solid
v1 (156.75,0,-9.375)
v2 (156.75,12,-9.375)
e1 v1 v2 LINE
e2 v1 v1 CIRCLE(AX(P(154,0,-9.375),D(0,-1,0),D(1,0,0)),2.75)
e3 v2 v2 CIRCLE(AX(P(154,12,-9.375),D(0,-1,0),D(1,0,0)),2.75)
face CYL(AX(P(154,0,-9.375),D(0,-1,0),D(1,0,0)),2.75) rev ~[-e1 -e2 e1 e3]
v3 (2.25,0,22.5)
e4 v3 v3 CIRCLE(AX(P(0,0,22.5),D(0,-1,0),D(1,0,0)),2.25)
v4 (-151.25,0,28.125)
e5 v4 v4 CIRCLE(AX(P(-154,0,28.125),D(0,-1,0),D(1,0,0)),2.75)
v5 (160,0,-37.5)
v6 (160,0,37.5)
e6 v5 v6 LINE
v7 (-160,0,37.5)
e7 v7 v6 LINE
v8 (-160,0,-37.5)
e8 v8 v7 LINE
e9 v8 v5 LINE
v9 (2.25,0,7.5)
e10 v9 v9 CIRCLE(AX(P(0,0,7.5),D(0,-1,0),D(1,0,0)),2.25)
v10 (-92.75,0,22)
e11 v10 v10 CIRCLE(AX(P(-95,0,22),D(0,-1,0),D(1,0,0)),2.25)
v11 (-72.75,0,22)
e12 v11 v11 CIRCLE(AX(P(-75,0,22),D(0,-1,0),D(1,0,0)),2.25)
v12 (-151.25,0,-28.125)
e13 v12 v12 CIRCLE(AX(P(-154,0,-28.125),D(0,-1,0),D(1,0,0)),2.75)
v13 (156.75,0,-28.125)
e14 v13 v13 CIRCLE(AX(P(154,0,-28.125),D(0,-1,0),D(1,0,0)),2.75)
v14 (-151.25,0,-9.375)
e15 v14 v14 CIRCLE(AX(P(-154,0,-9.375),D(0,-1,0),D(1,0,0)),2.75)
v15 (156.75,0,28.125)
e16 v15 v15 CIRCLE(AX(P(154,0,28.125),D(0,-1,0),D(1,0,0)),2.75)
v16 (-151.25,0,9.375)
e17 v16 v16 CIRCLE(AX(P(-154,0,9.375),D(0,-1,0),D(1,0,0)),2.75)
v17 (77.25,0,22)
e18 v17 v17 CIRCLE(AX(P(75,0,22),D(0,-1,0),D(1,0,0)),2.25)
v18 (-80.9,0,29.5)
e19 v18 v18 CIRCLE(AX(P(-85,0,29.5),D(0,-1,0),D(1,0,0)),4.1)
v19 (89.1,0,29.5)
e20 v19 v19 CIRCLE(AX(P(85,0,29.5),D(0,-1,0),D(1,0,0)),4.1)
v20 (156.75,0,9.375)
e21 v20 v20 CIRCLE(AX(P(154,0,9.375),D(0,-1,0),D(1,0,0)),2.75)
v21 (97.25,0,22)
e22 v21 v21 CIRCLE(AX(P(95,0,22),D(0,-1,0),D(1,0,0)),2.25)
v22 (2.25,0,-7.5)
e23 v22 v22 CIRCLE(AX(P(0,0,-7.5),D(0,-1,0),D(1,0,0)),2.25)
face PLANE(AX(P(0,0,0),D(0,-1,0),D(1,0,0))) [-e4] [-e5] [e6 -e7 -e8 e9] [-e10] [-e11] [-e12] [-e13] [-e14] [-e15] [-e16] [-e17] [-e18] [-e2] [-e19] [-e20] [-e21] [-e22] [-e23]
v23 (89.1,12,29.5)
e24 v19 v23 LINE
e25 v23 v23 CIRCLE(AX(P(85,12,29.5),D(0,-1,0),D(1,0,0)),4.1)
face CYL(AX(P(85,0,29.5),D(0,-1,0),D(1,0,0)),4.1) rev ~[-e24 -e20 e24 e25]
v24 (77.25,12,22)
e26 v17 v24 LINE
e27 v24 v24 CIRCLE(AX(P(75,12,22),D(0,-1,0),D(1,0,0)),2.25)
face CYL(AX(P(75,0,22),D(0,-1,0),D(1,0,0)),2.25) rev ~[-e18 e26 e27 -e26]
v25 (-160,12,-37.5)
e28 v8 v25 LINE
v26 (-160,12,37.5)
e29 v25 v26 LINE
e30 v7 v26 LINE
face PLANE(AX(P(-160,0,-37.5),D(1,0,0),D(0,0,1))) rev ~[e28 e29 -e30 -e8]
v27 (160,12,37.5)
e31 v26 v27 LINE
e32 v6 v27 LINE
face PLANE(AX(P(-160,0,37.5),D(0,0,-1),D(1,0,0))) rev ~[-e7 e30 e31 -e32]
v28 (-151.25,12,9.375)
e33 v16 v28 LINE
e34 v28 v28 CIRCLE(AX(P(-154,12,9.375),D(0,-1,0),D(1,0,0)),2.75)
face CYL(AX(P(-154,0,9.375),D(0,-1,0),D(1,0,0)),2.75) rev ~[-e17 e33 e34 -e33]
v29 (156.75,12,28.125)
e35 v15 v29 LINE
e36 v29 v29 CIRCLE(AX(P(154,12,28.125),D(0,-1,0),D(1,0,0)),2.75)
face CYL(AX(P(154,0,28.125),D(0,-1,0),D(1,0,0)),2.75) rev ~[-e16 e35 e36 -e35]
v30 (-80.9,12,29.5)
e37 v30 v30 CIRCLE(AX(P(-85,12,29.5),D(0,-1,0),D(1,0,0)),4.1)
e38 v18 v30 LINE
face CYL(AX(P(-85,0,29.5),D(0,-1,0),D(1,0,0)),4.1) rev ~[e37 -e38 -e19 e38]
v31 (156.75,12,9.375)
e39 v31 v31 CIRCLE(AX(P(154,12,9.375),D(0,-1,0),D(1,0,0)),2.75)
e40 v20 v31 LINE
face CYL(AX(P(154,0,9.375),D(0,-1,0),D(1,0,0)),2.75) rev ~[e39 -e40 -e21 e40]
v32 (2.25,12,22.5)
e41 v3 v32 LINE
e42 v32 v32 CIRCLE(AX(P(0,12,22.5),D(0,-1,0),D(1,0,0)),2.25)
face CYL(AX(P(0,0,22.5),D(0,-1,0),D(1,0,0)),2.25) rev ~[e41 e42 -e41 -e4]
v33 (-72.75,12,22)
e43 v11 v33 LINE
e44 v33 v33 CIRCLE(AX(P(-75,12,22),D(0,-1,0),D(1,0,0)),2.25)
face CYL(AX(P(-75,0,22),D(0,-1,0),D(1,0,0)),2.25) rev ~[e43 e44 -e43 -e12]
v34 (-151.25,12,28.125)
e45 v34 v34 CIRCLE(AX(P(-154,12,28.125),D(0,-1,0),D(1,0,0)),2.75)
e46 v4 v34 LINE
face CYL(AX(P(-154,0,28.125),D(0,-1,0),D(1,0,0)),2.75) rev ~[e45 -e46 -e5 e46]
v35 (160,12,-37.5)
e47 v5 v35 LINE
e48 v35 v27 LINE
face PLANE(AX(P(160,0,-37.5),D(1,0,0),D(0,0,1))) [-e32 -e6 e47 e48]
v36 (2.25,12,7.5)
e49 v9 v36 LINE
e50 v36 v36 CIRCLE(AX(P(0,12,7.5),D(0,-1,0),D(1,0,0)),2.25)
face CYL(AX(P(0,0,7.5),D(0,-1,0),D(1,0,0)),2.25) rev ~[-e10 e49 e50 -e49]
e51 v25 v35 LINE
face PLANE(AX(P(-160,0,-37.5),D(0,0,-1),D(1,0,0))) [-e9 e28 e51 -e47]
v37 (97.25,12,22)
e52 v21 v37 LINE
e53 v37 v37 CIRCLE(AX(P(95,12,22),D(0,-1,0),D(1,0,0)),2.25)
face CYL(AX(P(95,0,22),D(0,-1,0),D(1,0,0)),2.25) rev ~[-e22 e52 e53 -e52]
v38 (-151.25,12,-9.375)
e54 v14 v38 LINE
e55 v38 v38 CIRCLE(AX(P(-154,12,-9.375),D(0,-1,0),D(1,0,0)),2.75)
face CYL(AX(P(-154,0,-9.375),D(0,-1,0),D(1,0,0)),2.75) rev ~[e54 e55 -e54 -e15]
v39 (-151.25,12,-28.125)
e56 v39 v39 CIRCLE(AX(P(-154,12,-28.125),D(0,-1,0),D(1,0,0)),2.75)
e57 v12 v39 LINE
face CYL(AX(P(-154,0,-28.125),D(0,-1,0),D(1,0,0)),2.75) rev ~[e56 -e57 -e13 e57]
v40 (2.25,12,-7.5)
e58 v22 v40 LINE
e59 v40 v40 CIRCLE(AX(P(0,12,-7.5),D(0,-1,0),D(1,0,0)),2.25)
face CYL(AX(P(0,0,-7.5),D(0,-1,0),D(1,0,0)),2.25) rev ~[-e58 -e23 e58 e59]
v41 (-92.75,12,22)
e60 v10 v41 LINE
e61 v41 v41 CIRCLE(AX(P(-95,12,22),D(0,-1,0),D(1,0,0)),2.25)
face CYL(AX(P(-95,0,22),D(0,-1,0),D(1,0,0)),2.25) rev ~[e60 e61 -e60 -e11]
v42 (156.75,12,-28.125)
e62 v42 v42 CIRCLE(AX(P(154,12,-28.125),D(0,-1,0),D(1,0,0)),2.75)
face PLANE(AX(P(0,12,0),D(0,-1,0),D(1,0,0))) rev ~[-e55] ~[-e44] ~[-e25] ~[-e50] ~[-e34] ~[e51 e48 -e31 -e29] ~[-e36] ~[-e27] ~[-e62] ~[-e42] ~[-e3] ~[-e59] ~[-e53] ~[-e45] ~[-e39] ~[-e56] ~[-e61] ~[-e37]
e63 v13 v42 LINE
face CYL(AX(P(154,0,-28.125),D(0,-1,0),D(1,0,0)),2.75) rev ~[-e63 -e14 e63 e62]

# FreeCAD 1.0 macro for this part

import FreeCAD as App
import Part
import Sketcher


def add_polygon(sketch, points):
    """Adds a closed chain of lines whose ends are joined by coincident constraints."""
    first, n = sketch.GeometryCount, len(points)
    for a, b in zip(points, points[1:] + points[:1]):
        sketch.addGeometry(Part.LineSegment(App.Vector(*a, 0), App.Vector(*b, 0)), False)
    for i in range(n):
        sketch.addConstraint(Sketcher.Constraint("Coincident", first + i, 2, first + (i + 1) % n, 1))

doc = App.newDocument("Part")
body = doc.addObject("PartDesign::Body", "Body")

# Sketch on XZ plane
sketch1 = body.newObject("Sketcher::SketchObject", "Sketch")
sketch1.AttachmentSupport = (doc.getObject("XZ_Plane"), [""])
sketch1.MapMode = "FlatFace"
add_polygon(sketch1, [(-160, 37.5), (-160, -37.5), (160, -37.5), (160, 37.5)])  # lines 0-3
sketch1.addGeometry(Part.Circle(App.Vector(-154, -28.1, 0), App.Vector(0, 0, 1), 2.8), False)  # 4
sketch1.addGeometry(Part.Circle(App.Vector(-154, -9.4, 0), App.Vector(0, 0, 1), 2.8), False)  # 5
sketch1.addGeometry(Part.Circle(App.Vector(154, -28.1, 0), App.Vector(0, 0, 1), 2.8), False)  # 6
sketch1.addGeometry(Part.Circle(App.Vector(0, -7.5, 0), App.Vector(0, 0, 1), 2.2), False)  # 7
sketch1.addGeometry(Part.Circle(App.Vector(154, -9.4, 0), App.Vector(0, 0, 1), 2.8), False)  # 8
sketch1.addGeometry(Part.Circle(App.Vector(-154, 9.4, 0), App.Vector(0, 0, 1), 2.8), False)  # 9
sketch1.addGeometry(Part.Circle(App.Vector(-95, 22, 0), App.Vector(0, 0, 1), 2.2), False)  # 10
sketch1.addGeometry(Part.Circle(App.Vector(-154, 28.1, 0), App.Vector(0, 0, 1), 2.8), False)  # 11
sketch1.addGeometry(Part.Circle(App.Vector(-85, 29.5, 0), App.Vector(0, 0, 1), 4.1), False)  # 12
sketch1.addGeometry(Part.Circle(App.Vector(-75, 22, 0), App.Vector(0, 0, 1), 2.2), False)  # 13
sketch1.addGeometry(Part.Circle(App.Vector(0, 7.5, 0), App.Vector(0, 0, 1), 2.2), False)  # 14
sketch1.addGeometry(Part.Circle(App.Vector(154, 9.4, 0), App.Vector(0, 0, 1), 2.8), False)  # 15
sketch1.addGeometry(Part.Circle(App.Vector(0, 22.5, 0), App.Vector(0, 0, 1), 2.2), False)  # 16
sketch1.addGeometry(Part.Circle(App.Vector(75, 22, 0), App.Vector(0, 0, 1), 2.2), False)  # 17
sketch1.addGeometry(Part.Circle(App.Vector(95, 22, 0), App.Vector(0, 0, 1), 2.2), False)  # 18
sketch1.addGeometry(Part.Circle(App.Vector(85, 29.5, 0), App.Vector(0, 0, 1), 4.1), False)  # 19
sketch1.addGeometry(Part.Circle(App.Vector(154, 28.1, 0), App.Vector(0, 0, 1), 2.8), False)  # 20
sketch1.addConstraint(Sketcher.Constraint("Vertical", 0))
sketch1.addConstraint(Sketcher.Constraint("Horizontal", 1))
sketch1.addConstraint(Sketcher.Constraint("Vertical", 2))
sketch1.addConstraint(Sketcher.Constraint("Horizontal", 3))
sketch1.addConstraint(Sketcher.Constraint("Equal", 4, 5))
sketch1.addConstraint(Sketcher.Constraint("Equal", 5, 6))
sketch1.addConstraint(Sketcher.Constraint("Equal", 6, 8))
sketch1.addConstraint(Sketcher.Constraint("Equal", 8, 9))
sketch1.addConstraint(Sketcher.Constraint("Equal", 7, 10))
sketch1.addConstraint(Sketcher.Constraint("Equal", 9, 11))
sketch1.addConstraint(Sketcher.Constraint("Equal", 10, 13))
sketch1.addConstraint(Sketcher.Constraint("Equal", 13, 14))
sketch1.addConstraint(Sketcher.Constraint("Equal", 11, 15))
sketch1.addConstraint(Sketcher.Constraint("Equal", 14, 16))
sketch1.addConstraint(Sketcher.Constraint("Equal", 16, 17))
sketch1.addConstraint(Sketcher.Constraint("Equal", 17, 18))
sketch1.addConstraint(Sketcher.Constraint("Equal", 12, 19))
sketch1.addConstraint(Sketcher.Constraint("Equal", 15, 20))
sketch1.addConstraint(Sketcher.Constraint("Symmetric", 8, 3, 9, 3, -1, 1))
sketch1.addConstraint(Sketcher.Constraint("Symmetric", 6, 3, 11, 3, -1, 1))
sketch1.addConstraint(Sketcher.Constraint("Symmetric", 7, 3, 14, 3, -1, 1))
sketch1.addConstraint(Sketcher.Constraint("Symmetric", 5, 3, 15, 3, -1, 1))
sketch1.addConstraint(Sketcher.Constraint("Symmetric", 4, 3, 20, 3, -1, 1))
sketch1.addConstraint(Sketcher.Constraint("Symmetric", 0, 2, 2, 2, -1, 1))
sketch1.addConstraint(Sketcher.Constraint("Symmetric", 4, 3, 6, 3, -2))
sketch1.addConstraint(Sketcher.Constraint("Symmetric", 5, 3, 8, 3, -2))
sketch1.addConstraint(Sketcher.Constraint("Symmetric", 13, 3, 17, 3, -2))
sketch1.addConstraint(Sketcher.Constraint("Symmetric", 10, 3, 18, 3, -2))
sketch1.addConstraint(Sketcher.Constraint("Symmetric", 12, 3, 19, 3, -2))
sketch1.addConstraint(Sketcher.Constraint("PointOnObject", 7, 3, -2))
sketch1.addConstraint(Sketcher.Constraint("PointOnObject", 16, 3, -2))
sketch1.addConstraint(Sketcher.Constraint("Horizontal", 10, 3, 13, 3))
sketch1.addConstraint(Sketcher.Constraint("Vertical", 4, 3, 5, 3))
sketch1.addConstraint(Sketcher.Constraint("Diameter", 4, 5.5))
sketch1.addConstraint(Sketcher.Constraint("Diameter", 7, 4.5))
sketch1.addConstraint(Sketcher.Constraint("Diameter", 12, 8.2))
sketch1.addConstraint(Sketcher.Constraint("DistanceX", 1, 1, 1, 2, 320.0))
sketch1.addConstraint(Sketcher.Constraint("DistanceY", 0, 2, 0, 1, 75.0))
sketch1.addConstraint(Sketcher.Constraint("DistanceX", 4, 3, -1, 1, 154.0))
sketch1.addConstraint(Sketcher.Constraint("DistanceX", 10, 3, -1, 1, 95.0))
sketch1.addConstraint(Sketcher.Constraint("DistanceY", -1, 1, 10, 3, 22.0))
sketch1.addConstraint(Sketcher.Constraint("DistanceX", 12, 3, -1, 1, 85.0))
sketch1.addConstraint(Sketcher.Constraint("DistanceX", 13, 3, -1, 1, 75.0))
sketch1.addConstraint(Sketcher.Constraint("DistanceY", 7, 3, 14, 3, 15.0))
sketch1.addConstraint(Sketcher.Constraint("DistanceY", 14, 3, 12, 3, 22.0))
sketch1.addConstraint(Sketcher.Constraint("DistanceY", 14, 3, 16, 3, 15.0))
sketch1.addConstraint(Sketcher.Constraint("DistanceY", 4, 3, 9, 3, 37.5))
sketch1.addConstraint(Sketcher.Constraint("DistanceY", 4, 3, 5, 3, 18.75))
pad1 = body.newObject("PartDesign::Pad", "Pad")
pad1.Profile = sketch1
pad1.Length = 12
pad1.Reversed = True

doc.recompute()
